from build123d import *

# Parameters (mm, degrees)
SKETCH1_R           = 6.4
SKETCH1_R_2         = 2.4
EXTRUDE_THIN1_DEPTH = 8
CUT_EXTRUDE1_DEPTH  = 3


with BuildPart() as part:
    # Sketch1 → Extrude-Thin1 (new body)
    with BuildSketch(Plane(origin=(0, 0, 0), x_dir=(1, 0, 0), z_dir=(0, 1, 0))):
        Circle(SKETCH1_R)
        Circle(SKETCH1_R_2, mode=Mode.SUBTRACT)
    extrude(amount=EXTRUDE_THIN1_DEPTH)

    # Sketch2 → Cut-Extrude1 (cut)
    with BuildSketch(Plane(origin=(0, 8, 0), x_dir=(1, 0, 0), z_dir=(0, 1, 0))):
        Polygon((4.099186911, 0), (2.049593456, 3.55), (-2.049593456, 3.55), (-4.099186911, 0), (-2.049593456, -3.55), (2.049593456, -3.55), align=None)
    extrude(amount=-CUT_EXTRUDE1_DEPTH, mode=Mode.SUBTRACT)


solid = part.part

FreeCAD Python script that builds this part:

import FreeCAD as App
import Part
import Sketcher

V = App.Vector
Q = App.Units.Quantity

doc = App.newDocument("Part")
body = doc.addObject("PartDesign::Body", "Body")

# Sketch on XZ plane
sketch1 = body.newObject("Sketcher::SketchObject", "Sketch")
sketch1.AttachmentSupport = (doc.getObject("XZ_Plane"), [""])
sketch1.MapMode = "FlatFace"
sketch1.addGeometry([
    Part.Circle(V(0, 0, 0), V(0, 0, 1), 6.4),
    Part.Circle(V(0, 0, 0), V(0, 0, 1), 2.4),
], False)
sketch1.addConstraint([
    Sketcher.Constraint("Coincident", 0, 3, -1, 1),
    Sketcher.Constraint("Coincident", 1, 3, -1, 1),
    Sketcher.Constraint("Diameter", 0, 12.8),
    Sketcher.Constraint("Diameter", 1, 4.8),
])
pad1 = body.newObject("PartDesign::Pad", "Pad")
pad1.Profile = sketch1
pad1.Length = 8
pad1.Reversed = True

# Sketch on XZ plane
sketch2 = body.newObject("Sketcher::SketchObject", "Sketch001")
sketch2.AttachmentSupport = (doc.getObject("XZ_Plane"), [""])
sketch2.MapMode = "FlatFace"
sketch2.AttachmentOffset = App.Placement(V(0, 0, -8), App.Rotation())
sketch2.addGeometry([
    Part.LineSegment(V(4.1, 0, 0), V(2, -3.5, 0)),  # 0
    Part.LineSegment(V(2, -3.5, 0), V(-2, -3.5, 0)),  # 1
    Part.LineSegment(V(-2, -3.5, 0), V(-4.1, 0, 0)),  # 2
    Part.LineSegment(V(-4.1, 0, 0), V(-2, 3.5, 0)),  # 3
    Part.LineSegment(V(-2, 3.5, 0), V(2, 3.5, 0)),  # 4
    Part.LineSegment(V(2, 3.5, 0), V(4.1, 0, 0)),  # 5
], False)
sketch2.addConstraint([
    Sketcher.Constraint("Coincident", 0, 2, 1, 1),
    Sketcher.Constraint("Coincident", 1, 2, 2, 1),
    Sketcher.Constraint("Coincident", 2, 2, 3, 1),
    Sketcher.Constraint("Coincident", 3, 2, 4, 1),
    Sketcher.Constraint("Coincident", 4, 2, 5, 1),
    Sketcher.Constraint("Coincident", 5, 2, 0, 1),
    Sketcher.Constraint("Horizontal", 1),
    Sketcher.Constraint("Horizontal", 4),
    Sketcher.Constraint("Symmetric", 0, 2, 3, 2, -1, 1),
    Sketcher.Constraint("Symmetric", 2, 2, 5, 2, -1, 1),
    Sketcher.Constraint("PointOnObject", 2, 2, -1),
    Sketcher.Constraint("Parallel", 2, 5),
    Sketcher.Constraint("Vertical", 1, 2, 3, 2),
    Sketcher.Constraint("Angle", 0, Q("-120 deg")),
    Sketcher.Constraint("DistanceY", 1, 2, 3, 2, 7.1),
    Sketcher.Constraint("DistanceX", 1, 2, 1, 1, 4.099187),
])
pocket1 = body.newObject("PartDesign::Pocket", "Pocket")
pocket1.Profile = sketch2
pocket1.Length = 3
pocket1.Reversed = True

doc.recompute()
